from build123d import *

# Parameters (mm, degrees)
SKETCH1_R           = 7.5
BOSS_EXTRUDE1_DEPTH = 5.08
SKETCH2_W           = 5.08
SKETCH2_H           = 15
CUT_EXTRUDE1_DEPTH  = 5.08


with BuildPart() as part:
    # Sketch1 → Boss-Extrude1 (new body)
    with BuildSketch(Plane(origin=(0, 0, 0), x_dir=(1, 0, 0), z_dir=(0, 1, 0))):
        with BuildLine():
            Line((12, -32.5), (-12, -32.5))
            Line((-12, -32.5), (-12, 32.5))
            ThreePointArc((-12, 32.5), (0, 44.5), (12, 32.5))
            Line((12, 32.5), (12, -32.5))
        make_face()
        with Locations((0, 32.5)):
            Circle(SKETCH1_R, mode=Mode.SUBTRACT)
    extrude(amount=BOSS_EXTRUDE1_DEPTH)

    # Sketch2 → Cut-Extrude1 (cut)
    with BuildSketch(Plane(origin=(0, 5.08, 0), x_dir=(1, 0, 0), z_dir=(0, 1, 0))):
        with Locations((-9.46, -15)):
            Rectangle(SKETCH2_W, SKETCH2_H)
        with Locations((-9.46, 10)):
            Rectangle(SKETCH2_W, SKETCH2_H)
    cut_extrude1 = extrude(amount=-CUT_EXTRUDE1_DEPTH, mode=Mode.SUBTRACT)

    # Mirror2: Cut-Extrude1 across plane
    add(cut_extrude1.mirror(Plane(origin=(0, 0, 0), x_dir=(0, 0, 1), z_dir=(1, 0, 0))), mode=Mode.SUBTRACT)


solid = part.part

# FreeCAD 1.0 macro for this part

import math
import FreeCAD as App
import Part
import Sketcher
from FreeCAD import Vector

doc = App.newDocument("Part")
body = doc.addObject("PartDesign::Body", "Body")

# Sketch on XZ plane
sketch1 = body.newObject("Sketcher::SketchObject", "Sketch")
sketch1.AttachmentSupport = (doc.getObject("XZ_Plane"), [""])
sketch1.MapMode = "FlatFace"
sketch1.addGeometry([
    Part.LineSegment(Vector(-12, 32, 0), Vector(12, 32, 0)),  # 0
    Part.LineSegment(Vector(12, 32, 0), Vector(12, -32, 0)),  # 1
    Part.ArcOfCircle(Part.Circle(Vector(0, -32, 0), Vector(0, 0, 1), 12), math.radians(180), math.radians(360)),  # 2
    Part.LineSegment(Vector(-12, -32, 0), Vector(-12, 32, 0)),  # 3
    Part.Circle(Vector(0, -32, 0), Vector(0, 0, 1), 8),  # 4
], False)
sketch1.addConstraint([
    Sketcher.Constraint("Coincident", 0, 2, 1, 1),
    Sketcher.Constraint("Tangent", 1, 2, 2, 2),
    Sketcher.Constraint("Tangent", 2, 1, 3, 1),
    Sketcher.Constraint("Coincident", 3, 2, 0, 1),
    Sketcher.Constraint("Horizontal", 0),
    Sketcher.Constraint("Vertical", 1),
    Sketcher.Constraint("Vertical", 3),
    Sketcher.Constraint("Coincident", 4, 3, 2, 3),
    Sketcher.Constraint("Symmetric", 0, 2, 2, 1, -1, 1),
    Sketcher.Constraint("Diameter", 4, 15.0),
    Sketcher.Constraint("Radius", 2, 12.0),
    Sketcher.Constraint("DistanceY", 1, 2, 1, 1, 65.0),
])
pad1 = body.newObject("PartDesign::Pad", "Pad")
pad1.Profile = sketch1
pad1.Length = 5.08
pad1.Reversed = True

# Sketch on XZ plane
sketch2 = body.newObject("Sketcher::SketchObject", "Sketch001")
sketch2.AttachmentSupport = (doc.getObject("XZ_Plane"), [""])
sketch2.MapMode = "FlatFace"
sketch2.AttachmentOffset = App.Placement(Vector(0, 0, -5.08), App.Rotation())
sketch2.addGeometry([
    Part.LineSegment(Vector(-12, 8, 0), Vector(-12, 22, 0)),  # 0
    Part.LineSegment(Vector(-12, 22, 0), Vector(-7, 22, 0)),  # 1
    Part.LineSegment(Vector(-7, 22, 0), Vector(-7, 8, 0)),  # 2
    Part.LineSegment(Vector(-7, 8, 0), Vector(-12, 8, 0)),  # 3
    Part.LineSegment(Vector(-12, -18, 0), Vector(-12, -2, 0)),  # 4
    Part.LineSegment(Vector(-12, -2, 0), Vector(-7, -2, 0)),  # 5
    Part.LineSegment(Vector(-7, -2, 0), Vector(-7, -18, 0)),  # 6
    Part.LineSegment(Vector(-7, -18, 0), Vector(-12, -18, 0)),  # 7
], False)
sketch2.addConstraint([
    Sketcher.Constraint("Coincident", 0, 2, 1, 1),
    Sketcher.Constraint("Coincident", 1, 2, 2, 1),
    Sketcher.Constraint("Coincident", 2, 2, 3, 1),
    Sketcher.Constraint("Coincident", 3, 2, 0, 1),
    Sketcher.Constraint("Coincident", 4, 2, 5, 1),
    Sketcher.Constraint("Coincident", 5, 2, 6, 1),
    Sketcher.Constraint("Coincident", 6, 2, 7, 1),
    Sketcher.Constraint("Coincident", 7, 2, 4, 1),
    Sketcher.Constraint("Vertical", 0),
    Sketcher.Constraint("Horizontal", 1),
    Sketcher.Constraint("Vertical", 2),
    Sketcher.Constraint("Horizontal", 3),
    Sketcher.Constraint("Vertical", 4),
    Sketcher.Constraint("Horizontal", 5),
    Sketcher.Constraint("Vertical", 6),
    Sketcher.Constraint("Horizontal", 7),
    Sketcher.Constraint("Vertical", 3, 2, 4, 2),
    Sketcher.Constraint("Vertical", 2, 2, 5, 2),
    Sketcher.Constraint("Equal", 2, 4),
    Sketcher.Constraint("DistanceY", 0, 1, 0, 2, 15.0),
    Sketcher.Constraint("DistanceX", 0, 2, -1, 1, 12.0),
    Sketcher.Constraint("DistanceY", 4, 2, 3, 2, 10.0),
    Sketcher.Constraint("DistanceX", 1, 1, 1, 2, 5.08),
    Sketcher.Constraint("DistanceY", -1, 1, 0, 2, 22.5),
])
pocket1 = body.newObject("PartDesign::Pocket", "Pocket")
pocket1.Profile = sketch2
pocket1.Length = 5.08
pocket1.Reversed = True
doc.recompute()

mirrored = body.newObject("PartDesign::Mirrored", "Mirrored")
mirrored.Originals = [pocket1]
mirrored.MirrorPlane = (doc.getObject("YZ_Plane"), [""])
body.Tip = mirrored

doc.recompute()
